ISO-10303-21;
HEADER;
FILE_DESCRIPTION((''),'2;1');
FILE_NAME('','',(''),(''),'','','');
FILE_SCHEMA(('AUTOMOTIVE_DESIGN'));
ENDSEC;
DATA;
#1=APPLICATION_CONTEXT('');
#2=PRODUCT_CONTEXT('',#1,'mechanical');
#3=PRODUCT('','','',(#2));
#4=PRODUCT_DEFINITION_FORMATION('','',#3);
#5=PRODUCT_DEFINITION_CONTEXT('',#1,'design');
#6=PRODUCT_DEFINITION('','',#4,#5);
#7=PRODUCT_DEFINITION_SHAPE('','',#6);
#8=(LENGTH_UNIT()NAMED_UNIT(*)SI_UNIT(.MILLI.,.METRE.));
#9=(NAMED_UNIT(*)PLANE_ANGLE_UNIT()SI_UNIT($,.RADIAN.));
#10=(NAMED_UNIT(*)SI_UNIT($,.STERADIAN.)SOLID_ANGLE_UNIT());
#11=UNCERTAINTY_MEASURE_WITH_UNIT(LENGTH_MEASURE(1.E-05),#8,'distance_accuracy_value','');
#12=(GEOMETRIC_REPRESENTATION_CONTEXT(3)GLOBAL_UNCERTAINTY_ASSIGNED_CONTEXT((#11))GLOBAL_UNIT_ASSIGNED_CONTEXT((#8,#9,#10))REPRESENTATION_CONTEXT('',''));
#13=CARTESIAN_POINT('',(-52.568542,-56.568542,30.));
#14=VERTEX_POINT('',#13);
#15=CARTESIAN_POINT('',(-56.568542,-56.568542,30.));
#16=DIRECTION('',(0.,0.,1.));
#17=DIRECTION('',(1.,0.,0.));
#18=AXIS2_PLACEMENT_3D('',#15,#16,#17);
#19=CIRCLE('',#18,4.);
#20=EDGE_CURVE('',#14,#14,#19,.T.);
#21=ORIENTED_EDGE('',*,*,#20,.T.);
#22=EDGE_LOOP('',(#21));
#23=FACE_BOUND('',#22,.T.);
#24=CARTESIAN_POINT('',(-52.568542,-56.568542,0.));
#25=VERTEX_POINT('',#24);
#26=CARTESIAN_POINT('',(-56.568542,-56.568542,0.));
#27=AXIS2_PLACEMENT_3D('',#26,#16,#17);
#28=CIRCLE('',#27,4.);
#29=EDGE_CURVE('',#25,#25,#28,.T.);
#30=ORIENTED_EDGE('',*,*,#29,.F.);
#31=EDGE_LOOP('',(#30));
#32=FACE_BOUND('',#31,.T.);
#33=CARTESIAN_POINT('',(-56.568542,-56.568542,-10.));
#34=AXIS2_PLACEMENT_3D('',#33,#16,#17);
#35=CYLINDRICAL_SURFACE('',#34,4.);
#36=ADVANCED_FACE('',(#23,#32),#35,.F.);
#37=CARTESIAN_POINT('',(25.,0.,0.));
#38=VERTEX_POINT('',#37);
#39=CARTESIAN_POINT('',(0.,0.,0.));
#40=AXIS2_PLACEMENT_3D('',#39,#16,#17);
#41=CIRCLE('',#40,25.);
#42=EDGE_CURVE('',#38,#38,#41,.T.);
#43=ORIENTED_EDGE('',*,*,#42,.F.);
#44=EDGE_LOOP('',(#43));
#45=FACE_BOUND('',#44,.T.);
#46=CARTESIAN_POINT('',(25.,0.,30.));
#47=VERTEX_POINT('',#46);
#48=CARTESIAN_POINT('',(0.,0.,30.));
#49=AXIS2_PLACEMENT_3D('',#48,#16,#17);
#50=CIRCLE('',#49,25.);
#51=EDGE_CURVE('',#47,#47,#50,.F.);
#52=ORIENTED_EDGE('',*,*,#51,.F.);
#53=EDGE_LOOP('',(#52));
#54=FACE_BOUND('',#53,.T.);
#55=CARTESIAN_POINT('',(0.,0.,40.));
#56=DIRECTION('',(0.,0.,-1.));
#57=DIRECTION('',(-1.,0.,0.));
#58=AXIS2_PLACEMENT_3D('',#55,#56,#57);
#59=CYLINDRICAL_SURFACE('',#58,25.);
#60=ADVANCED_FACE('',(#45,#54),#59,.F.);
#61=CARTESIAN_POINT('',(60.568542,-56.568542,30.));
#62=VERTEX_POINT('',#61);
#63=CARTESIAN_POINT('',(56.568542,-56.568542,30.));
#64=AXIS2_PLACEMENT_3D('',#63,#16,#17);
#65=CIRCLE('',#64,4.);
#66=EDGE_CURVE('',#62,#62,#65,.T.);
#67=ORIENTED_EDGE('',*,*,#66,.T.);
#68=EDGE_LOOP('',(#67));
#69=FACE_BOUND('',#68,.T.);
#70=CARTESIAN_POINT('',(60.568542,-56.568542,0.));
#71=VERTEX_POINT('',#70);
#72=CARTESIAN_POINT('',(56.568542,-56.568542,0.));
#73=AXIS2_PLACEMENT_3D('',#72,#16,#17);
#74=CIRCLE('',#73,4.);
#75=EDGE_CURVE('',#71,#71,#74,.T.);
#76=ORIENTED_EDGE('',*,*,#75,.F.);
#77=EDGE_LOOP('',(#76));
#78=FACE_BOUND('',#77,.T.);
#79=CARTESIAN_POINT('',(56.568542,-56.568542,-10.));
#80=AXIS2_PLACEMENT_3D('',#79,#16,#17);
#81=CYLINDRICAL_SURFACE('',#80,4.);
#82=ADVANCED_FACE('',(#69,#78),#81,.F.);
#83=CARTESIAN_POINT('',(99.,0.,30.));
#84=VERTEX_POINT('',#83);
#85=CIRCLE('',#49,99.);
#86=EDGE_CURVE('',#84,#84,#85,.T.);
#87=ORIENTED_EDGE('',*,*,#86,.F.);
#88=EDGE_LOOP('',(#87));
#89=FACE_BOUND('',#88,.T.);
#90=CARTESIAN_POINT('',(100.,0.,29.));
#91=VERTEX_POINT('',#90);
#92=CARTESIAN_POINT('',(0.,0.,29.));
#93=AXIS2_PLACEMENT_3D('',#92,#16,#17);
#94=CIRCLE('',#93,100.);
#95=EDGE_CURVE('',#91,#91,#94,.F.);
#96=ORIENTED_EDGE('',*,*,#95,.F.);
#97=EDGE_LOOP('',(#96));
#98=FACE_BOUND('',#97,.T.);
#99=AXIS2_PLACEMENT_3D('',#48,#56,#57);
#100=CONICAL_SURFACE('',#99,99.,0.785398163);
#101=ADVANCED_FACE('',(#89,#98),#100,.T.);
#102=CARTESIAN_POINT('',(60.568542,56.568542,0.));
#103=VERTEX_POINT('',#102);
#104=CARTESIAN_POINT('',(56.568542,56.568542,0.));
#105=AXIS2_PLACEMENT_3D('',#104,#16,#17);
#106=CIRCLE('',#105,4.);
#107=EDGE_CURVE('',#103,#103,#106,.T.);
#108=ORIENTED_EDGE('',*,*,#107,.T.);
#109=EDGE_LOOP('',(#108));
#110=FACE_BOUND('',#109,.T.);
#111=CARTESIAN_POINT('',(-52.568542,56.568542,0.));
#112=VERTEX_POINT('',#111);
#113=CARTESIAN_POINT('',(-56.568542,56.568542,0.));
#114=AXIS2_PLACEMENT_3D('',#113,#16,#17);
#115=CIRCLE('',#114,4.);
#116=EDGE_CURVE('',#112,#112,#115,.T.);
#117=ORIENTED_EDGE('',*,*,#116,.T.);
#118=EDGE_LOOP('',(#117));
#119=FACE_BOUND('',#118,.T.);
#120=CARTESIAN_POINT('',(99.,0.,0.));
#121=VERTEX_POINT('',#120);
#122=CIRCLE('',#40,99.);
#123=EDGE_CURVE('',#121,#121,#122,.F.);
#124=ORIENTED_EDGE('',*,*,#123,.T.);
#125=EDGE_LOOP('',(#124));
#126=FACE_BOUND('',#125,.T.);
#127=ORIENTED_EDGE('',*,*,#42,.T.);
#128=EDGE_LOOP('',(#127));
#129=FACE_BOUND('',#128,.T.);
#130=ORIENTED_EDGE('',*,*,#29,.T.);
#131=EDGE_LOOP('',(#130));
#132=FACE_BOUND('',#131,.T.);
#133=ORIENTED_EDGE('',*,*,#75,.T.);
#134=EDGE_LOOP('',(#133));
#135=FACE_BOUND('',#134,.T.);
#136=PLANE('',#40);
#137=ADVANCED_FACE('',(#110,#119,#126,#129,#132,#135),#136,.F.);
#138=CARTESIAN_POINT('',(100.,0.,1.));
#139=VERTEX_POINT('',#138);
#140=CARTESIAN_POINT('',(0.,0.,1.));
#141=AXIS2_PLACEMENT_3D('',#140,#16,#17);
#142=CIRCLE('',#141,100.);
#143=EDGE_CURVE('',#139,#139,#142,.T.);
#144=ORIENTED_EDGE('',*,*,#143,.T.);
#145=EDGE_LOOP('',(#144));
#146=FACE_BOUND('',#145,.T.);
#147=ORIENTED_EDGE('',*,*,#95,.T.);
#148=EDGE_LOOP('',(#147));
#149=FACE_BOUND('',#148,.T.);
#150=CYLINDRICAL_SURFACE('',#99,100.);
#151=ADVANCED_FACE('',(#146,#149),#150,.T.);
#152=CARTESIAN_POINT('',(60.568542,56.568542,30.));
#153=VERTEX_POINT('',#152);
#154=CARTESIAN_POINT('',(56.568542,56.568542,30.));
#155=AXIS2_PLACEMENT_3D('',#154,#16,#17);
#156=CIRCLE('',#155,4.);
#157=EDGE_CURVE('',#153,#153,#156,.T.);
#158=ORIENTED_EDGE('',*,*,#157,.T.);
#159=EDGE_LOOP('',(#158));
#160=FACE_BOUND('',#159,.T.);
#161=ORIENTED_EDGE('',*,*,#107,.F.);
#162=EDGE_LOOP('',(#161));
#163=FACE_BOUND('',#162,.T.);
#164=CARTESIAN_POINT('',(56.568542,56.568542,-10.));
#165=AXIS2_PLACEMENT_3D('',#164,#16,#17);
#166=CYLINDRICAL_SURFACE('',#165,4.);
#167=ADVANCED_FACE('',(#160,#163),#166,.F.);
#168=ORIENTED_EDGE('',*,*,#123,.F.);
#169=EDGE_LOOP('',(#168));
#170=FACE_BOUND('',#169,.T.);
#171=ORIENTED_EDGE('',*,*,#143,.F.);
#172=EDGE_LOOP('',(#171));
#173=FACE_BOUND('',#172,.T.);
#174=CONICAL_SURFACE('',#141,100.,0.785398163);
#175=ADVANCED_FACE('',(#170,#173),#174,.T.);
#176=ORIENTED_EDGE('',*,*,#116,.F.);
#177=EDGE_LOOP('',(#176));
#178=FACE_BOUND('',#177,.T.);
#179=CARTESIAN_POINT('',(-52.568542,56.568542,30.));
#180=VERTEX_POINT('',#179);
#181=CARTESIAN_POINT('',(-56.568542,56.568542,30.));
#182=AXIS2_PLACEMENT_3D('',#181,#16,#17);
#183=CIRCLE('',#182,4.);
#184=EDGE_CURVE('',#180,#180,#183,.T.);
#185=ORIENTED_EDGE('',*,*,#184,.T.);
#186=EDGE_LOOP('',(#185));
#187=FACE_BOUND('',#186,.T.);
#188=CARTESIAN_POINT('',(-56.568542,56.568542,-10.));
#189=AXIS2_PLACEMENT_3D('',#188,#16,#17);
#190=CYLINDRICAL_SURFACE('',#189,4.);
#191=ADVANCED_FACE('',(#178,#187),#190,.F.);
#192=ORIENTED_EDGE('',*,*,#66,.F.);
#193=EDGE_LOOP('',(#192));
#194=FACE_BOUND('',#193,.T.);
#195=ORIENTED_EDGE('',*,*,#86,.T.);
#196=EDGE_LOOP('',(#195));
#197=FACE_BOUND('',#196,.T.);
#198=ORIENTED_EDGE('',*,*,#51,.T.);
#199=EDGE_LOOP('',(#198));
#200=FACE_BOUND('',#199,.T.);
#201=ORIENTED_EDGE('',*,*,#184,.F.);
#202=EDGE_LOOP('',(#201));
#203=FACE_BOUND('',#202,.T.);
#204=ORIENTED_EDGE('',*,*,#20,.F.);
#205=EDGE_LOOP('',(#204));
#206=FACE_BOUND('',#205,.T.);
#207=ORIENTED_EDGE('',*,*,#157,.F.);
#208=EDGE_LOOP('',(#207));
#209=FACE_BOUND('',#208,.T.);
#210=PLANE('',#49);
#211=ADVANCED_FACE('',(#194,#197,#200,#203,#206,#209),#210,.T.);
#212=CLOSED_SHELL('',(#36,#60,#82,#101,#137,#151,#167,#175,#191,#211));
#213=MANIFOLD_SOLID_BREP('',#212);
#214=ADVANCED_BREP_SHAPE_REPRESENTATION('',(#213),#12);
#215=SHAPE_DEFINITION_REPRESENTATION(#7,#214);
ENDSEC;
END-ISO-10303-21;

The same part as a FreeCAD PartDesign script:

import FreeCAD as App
import Part
import Sketcher
from FreeCAD import Vector
Q = App.Units.Quantity


def edges_at(feature, points):
    """Names of the edges that pass closest to the given points."""
    edges = feature.Shape.Edges
    near = lambda p: min(range(len(edges)), key=lambda i: edges[i].distToShape(Part.Vertex(*p))[0])
    return sorted({f"Edge{near(p) + 1}" for p in points})

doc = App.newDocument("Part")
body = doc.addObject("PartDesign::Body", "Body")

# Sketch on XY plane
sketch1 = body.newObject("Sketcher::SketchObject", "Sketch")
sketch1.AttachmentSupport = (doc.getObject("XY_Plane"), [""])
sketch1.MapMode = "FlatFace"
sketch1.addGeometry(Part.Circle(Vector(0, 0, 0), Vector(0, 0, 1), 100), False)
sketch1.addConstraint(Sketcher.Constraint("Coincident", 0, 3, -1, 1))
sketch1.addConstraint(Sketcher.Constraint("Diameter", 0, Q("200 mm")))
pad1 = body.newObject("PartDesign::Pad", "Pad")
pad1.Profile = sketch1
pad1.Length = 30

# Sketch on XY plane
sketch2 = body.newObject("Sketcher::SketchObject", "Sketch001")
sketch2.AttachmentSupport = (doc.getObject("XY_Plane"), [""])
sketch2.MapMode = "FlatFace"
sketch2.addGeometry(Part.Circle(Vector(0, 0, 0), Vector(0, 0, 1), 25), False)
sketch2.addConstraint(Sketcher.Constraint("Coincident", 0, 3, -1, 1))
sketch2.addConstraint(Sketcher.Constraint("Diameter", 0, Q("50 mm")))
pocket1 = body.newObject("PartDesign::Pocket", "Pocket")
pocket1.Profile = sketch2
pocket1.Length = 40
pocket1.Reversed = True

# Sketch on XY plane
sketch3 = body.newObject("Sketcher::SketchObject", "Sketch002")
sketch3.AttachmentSupport = (doc.getObject("XY_Plane"), [""])
sketch3.MapMode = "FlatFace"
sketch3.AttachmentOffset = App.Placement(Vector(0, 0, 30), App.Rotation())
sketch3.addGeometry(Part.Circle(Vector(56.568542, 56.568542, 0), Vector(0, 0, 1), 4), False)
sketch3.addGeometry(Part.Circle(Vector(-56.568542, 56.568542, 0), Vector(0, 0, 1), 4), False)
sketch3.addGeometry(Part.Circle(Vector(-56.568542, -56.568542, 0), Vector(0, 0, 1), 4), False)
sketch3.addGeometry(Part.Circle(Vector(56.568542, -56.568542, 0), Vector(0, 0, 1), 4), False)
sketch3.addConstraint(Sketcher.Constraint("Equal", 0, 1))
sketch3.addConstraint(Sketcher.Constraint("Equal", 1, 2))
sketch3.addConstraint(Sketcher.Constraint("Equal", 2, 3))
sketch3.addConstraint(Sketcher.Constraint("Symmetric", 0, 3, 2, 3, -1, 1))
sketch3.addConstraint(Sketcher.Constraint("Symmetric", 1, 3, 3, 3, -1, 1))
sketch3.addConstraint(Sketcher.Constraint("Symmetric", 0, 3, 1, 3, -2))
sketch3.addConstraint(Sketcher.Constraint("Diameter", 0, Q("8 mm")))
sketch3.addConstraint(Sketcher.Constraint("DistanceX", -1, 1, 0, 3, Q("56.568542 mm")))
sketch3.addConstraint(Sketcher.Constraint("DistanceY", -1, 1, 0, 3, Q("56.568542 mm")))
pocket2 = body.newObject("PartDesign::Pocket", "Pocket001")
pocket2.Profile = sketch3
pocket2.Length = 40
doc.recompute()

chamfer = body.newObject("PartDesign::Chamfer", "Chamfer")
chamfer.Base = (pocket2, edges_at(pocket2, [(-100, 0, 0)]))
chamfer.Size = 1
doc.recompute()

chamfer2 = body.newObject("PartDesign::Chamfer", "Chamfer001")
chamfer2.Base = (chamfer, edges_at(chamfer, [(-100, 0, 30)]))
chamfer2.Size = 1

doc.recompute()
